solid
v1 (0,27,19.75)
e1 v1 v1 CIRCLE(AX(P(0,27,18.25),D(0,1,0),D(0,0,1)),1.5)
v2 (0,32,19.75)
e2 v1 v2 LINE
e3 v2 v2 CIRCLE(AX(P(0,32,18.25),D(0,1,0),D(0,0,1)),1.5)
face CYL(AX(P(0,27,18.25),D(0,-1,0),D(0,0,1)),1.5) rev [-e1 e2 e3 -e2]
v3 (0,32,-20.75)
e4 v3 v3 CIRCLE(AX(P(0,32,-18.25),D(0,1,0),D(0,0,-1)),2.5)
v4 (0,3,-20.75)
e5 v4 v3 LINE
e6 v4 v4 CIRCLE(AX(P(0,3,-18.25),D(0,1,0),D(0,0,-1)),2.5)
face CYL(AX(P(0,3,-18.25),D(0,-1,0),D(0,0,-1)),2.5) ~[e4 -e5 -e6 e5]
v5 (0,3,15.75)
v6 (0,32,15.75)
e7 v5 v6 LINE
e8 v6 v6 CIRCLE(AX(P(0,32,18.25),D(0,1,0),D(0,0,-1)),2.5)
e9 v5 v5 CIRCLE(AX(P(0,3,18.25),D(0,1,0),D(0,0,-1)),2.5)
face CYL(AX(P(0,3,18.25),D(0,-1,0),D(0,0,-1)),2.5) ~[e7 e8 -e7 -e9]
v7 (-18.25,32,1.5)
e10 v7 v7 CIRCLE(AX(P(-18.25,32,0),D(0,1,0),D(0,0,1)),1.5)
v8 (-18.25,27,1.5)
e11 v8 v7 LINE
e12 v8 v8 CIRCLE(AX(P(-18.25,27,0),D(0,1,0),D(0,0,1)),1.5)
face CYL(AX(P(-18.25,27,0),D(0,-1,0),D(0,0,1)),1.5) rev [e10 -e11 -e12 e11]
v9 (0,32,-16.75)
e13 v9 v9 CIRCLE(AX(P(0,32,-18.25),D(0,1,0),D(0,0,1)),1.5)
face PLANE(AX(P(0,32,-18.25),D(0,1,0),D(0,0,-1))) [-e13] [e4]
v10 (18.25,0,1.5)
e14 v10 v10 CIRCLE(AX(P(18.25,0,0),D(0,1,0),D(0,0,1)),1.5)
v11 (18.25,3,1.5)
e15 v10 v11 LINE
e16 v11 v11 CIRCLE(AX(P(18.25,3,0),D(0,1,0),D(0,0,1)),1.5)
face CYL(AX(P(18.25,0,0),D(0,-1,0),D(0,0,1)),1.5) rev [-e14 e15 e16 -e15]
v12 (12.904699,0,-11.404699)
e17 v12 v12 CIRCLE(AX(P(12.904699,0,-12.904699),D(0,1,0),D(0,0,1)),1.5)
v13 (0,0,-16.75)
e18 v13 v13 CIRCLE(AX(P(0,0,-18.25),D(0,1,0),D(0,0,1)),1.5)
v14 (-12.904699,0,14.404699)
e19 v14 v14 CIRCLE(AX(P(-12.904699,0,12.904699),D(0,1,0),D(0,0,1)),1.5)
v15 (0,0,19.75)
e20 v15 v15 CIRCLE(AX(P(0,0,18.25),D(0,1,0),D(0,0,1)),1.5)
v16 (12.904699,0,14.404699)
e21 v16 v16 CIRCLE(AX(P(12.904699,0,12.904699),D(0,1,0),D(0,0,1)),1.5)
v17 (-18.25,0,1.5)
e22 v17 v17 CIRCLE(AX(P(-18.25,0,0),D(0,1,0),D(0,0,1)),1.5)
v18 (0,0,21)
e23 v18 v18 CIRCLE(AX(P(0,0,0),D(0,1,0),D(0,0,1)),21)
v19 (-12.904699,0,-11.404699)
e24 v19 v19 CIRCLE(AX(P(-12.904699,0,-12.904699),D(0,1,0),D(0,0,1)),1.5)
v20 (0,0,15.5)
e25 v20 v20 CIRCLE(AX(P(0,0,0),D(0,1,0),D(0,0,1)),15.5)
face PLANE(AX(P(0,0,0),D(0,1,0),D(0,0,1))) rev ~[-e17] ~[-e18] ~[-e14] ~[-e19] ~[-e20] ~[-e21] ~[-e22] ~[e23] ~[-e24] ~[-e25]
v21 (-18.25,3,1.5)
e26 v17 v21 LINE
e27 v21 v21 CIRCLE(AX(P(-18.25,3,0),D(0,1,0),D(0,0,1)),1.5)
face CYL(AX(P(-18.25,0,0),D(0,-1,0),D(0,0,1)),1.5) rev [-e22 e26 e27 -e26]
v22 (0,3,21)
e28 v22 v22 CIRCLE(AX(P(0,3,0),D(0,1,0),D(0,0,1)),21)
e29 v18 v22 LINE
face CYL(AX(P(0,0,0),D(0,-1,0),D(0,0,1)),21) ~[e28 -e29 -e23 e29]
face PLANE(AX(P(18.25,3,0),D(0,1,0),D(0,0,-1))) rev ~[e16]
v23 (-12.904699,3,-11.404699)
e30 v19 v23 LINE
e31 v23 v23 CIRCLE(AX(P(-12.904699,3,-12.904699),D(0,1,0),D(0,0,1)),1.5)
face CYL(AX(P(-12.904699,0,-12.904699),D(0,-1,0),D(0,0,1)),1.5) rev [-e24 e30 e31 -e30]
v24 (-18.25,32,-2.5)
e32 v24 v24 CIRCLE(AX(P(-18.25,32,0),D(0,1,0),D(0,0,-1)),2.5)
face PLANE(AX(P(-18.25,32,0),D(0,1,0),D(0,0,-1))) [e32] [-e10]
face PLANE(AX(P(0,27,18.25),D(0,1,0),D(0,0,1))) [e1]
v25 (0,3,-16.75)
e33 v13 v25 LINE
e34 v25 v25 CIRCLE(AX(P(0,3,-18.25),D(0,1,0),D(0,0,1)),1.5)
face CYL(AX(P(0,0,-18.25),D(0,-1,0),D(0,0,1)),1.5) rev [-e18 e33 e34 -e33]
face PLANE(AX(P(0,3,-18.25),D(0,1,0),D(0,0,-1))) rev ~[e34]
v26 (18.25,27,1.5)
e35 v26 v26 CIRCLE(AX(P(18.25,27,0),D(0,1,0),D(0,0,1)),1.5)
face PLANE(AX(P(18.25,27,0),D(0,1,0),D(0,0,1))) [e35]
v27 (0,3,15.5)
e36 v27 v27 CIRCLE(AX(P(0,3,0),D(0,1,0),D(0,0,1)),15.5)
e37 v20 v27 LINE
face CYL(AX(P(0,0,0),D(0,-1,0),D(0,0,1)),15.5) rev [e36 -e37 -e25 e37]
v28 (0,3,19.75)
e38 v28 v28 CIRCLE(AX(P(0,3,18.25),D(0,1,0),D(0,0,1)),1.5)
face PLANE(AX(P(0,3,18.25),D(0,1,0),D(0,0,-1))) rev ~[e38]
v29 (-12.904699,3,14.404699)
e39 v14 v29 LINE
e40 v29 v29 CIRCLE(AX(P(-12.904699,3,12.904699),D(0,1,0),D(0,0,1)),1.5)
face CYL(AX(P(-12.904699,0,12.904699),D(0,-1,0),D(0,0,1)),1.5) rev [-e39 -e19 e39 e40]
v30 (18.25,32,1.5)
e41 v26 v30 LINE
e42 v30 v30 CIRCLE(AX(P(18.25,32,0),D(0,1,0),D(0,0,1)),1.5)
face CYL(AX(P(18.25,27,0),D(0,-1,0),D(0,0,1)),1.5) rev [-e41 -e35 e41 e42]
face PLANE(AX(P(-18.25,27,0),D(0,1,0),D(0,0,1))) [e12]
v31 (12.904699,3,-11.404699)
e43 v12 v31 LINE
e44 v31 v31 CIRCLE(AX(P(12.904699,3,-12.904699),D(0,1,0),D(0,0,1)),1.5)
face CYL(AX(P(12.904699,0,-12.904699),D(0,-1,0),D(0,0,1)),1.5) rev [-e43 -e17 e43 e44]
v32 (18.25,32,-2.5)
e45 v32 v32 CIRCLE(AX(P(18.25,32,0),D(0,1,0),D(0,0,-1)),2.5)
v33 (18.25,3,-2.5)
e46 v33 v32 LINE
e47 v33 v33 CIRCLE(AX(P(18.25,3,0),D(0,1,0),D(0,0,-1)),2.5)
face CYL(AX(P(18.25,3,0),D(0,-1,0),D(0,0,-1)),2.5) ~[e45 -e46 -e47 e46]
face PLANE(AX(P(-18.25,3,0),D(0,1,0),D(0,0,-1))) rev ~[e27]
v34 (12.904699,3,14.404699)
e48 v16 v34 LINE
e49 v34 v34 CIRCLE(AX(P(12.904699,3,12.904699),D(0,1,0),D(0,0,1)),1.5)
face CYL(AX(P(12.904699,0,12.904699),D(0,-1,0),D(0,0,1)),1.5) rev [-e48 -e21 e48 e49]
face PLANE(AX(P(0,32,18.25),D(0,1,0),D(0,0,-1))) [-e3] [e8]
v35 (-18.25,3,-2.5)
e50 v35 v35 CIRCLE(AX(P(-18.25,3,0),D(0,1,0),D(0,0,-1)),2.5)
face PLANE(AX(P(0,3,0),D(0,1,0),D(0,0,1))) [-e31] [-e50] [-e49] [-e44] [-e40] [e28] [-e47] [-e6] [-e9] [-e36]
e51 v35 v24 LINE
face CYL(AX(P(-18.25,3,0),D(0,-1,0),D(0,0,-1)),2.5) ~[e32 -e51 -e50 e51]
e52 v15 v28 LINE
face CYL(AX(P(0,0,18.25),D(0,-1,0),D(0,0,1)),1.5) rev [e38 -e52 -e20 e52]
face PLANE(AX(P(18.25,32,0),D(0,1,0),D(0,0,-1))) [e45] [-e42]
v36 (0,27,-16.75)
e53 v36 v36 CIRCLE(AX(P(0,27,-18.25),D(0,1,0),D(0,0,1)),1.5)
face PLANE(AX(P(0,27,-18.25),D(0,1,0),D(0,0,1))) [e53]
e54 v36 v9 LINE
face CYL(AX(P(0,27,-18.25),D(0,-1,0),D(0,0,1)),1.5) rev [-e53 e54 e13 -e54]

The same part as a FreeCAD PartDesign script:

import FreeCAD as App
import Part
import Sketcher

V = App.Vector
Q = App.Units.Quantity

doc = App.newDocument("Part")
body = doc.addObject("PartDesign::Body", "Body")

# Sketch on XZ plane
sketch1 = body.newObject("Sketcher::SketchObject", "Sketch")
sketch1.AttachmentSupport = (doc.getObject("XZ_Plane"), [""])
sketch1.MapMode = "FlatFace"
sketch1.addGeometry(Part.Circle(V(0, 0, 0), V(0, 0, 1), 21), False)
sketch1.addGeometry(Part.Circle(V(-12.9, -12.9, 0), V(0, 0, 1), 1.5), False)
sketch1.addGeometry(Part.Circle(V(0, -18.2, 0), V(0, 0, 1), 1.5), False)
sketch1.addGeometry(Part.Circle(V(-18.2, 0, 0), V(0, 0, 1), 1.5), False)
sketch1.addGeometry(Part.Circle(V(-12.9, 12.9, 0), V(0, 0, 1), 1.5), False)
sketch1.addGeometry(Part.Circle(V(12.9, -12.9, 0), V(0, 0, 1), 1.5), False)
sketch1.addGeometry(Part.Circle(V(18.2, 0, 0), V(0, 0, 1), 1.5), False)
sketch1.addGeometry(Part.Circle(V(0, 0, 0), V(0, 0, 1), 15.5), False)
sketch1.addGeometry(Part.Circle(V(0, 18.2, 0), V(0, 0, 1), 1.5), False)
sketch1.addGeometry(Part.Circle(V(12.9, 12.9, 0), V(0, 0, 1), 1.5), False)
sketch1.addConstraint(Sketcher.Constraint("Coincident", 0, 3, -1, 1))
sketch1.addConstraint(Sketcher.Constraint("Coincident", 7, 3, -1, 1))
sketch1.addConstraint(Sketcher.Constraint("Equal", 1, 2))
sketch1.addConstraint(Sketcher.Constraint("Equal", 2, 3))
sketch1.addConstraint(Sketcher.Constraint("Equal", 3, 4))
sketch1.addConstraint(Sketcher.Constraint("Equal", 4, 5))
sketch1.addConstraint(Sketcher.Constraint("Equal", 5, 6))
sketch1.addConstraint(Sketcher.Constraint("Equal", 6, 8))
sketch1.addConstraint(Sketcher.Constraint("Equal", 8, 9))
sketch1.addConstraint(Sketcher.Constraint("Symmetric", 4, 3, 5, 3, -1, 1))
sketch1.addConstraint(Sketcher.Constraint("Symmetric", 3, 3, 6, 3, -1, 1))
sketch1.addConstraint(Sketcher.Constraint("Symmetric", 2, 3, 8, 3, -1, 1))
sketch1.addConstraint(Sketcher.Constraint("Symmetric", 1, 3, 9, 3, -1, 1))
sketch1.addConstraint(Sketcher.Constraint("Symmetric", 1, 3, 5, 3, -2))
sketch1.addConstraint(Sketcher.Constraint("PointOnObject", 2, 3, -2))
sketch1.addConstraint(Sketcher.Constraint("PointOnObject", 3, 3, -1))
sketch1.addConstraint(Sketcher.Constraint("Diameter", 0, Q("42 mm")))
sketch1.addConstraint(Sketcher.Constraint("Diameter", 1, Q("3 mm")))
sketch1.addConstraint(Sketcher.Constraint("Diameter", 7, Q("31 mm")))
sketch1.addConstraint(Sketcher.Constraint("DistanceY", 2, 3, -1, 1, Q("18.25 mm")))
sketch1.addConstraint(Sketcher.Constraint("DistanceX", 3, 3, -1, 1, Q("18.25 mm")))
sketch1.addConstraint(Sketcher.Constraint("DistanceX", 1, 3, -1, 1, Q("12.904699 mm")))
sketch1.addConstraint(Sketcher.Constraint("DistanceY", 1, 3, -1, 1, Q("12.904699 mm")))
pad1 = body.newObject("PartDesign::Pad", "Pad")
pad1.Profile = sketch1
pad1.Length = 3
pad1.Reversed = True

# Sketch on XZ plane
sketch2 = body.newObject("Sketcher::SketchObject", "Sketch001")
sketch2.AttachmentSupport = (doc.getObject("XZ_Plane"), [""])
sketch2.MapMode = "FlatFace"
sketch2.AttachmentOffset = App.Placement(V(0, 0, -3), App.Rotation())
sketch2.addGeometry(Part.Circle(V(0, -18.2, 0), V(0, 0, 1), 2.5), False)
sketch2.addGeometry(Part.Circle(V(18.2, 0, 0), V(0, 0, 1), 2.5), False)
sketch2.addGeometry(Part.Circle(V(0, 18.2, 0), V(0, 0, 1), 2.5), False)
sketch2.addGeometry(Part.Circle(V(-18.2, 0, 0), V(0, 0, 1), 2.5), False)
sketch2.addConstraint(Sketcher.Constraint("Equal", 0, 1))
sketch2.addConstraint(Sketcher.Constraint("Equal", 1, 2))
sketch2.addConstraint(Sketcher.Constraint("Equal", 2, 3))
sketch2.addConstraint(Sketcher.Constraint("Symmetric", 0, 3, 2, 3, -1, 1))
sketch2.addConstraint(Sketcher.Constraint("Symmetric", 1, 3, 3, 3, -1, 1))
sketch2.addConstraint(Sketcher.Constraint("PointOnObject", 0, 3, -2))
sketch2.addConstraint(Sketcher.Constraint("PointOnObject", 1, 3, -1))
sketch2.addConstraint(Sketcher.Constraint("Diameter", 0, Q("5 mm")))
sketch2.addConstraint(Sketcher.Constraint("DistanceY", 0, 3, 2, 3, Q("36.5 mm")))
sketch2.addConstraint(Sketcher.Constraint("DistanceX", 3, 3, 1, 3, Q("36.5 mm")))
pad2 = body.newObject("PartDesign::Pad", "Pad001")
pad2.Profile = sketch2
pad2.Length = 29
pad2.Reversed = True

# Sketch on XZ plane
sketch3 = body.newObject("Sketcher::SketchObject", "Sketch002")
sketch3.AttachmentSupport = (doc.getObject("XZ_Plane"), [""])
sketch3.MapMode = "FlatFace"
sketch3.AttachmentOffset = App.Placement(V(0, 0, -27), App.Rotation())
sketch3.addGeometry(Part.Circle(V(18.2, 0, 0), V(0, 0, 1), 1.5), False)
sketch3.addGeometry(Part.Circle(V(0, -18.2, 0), V(0, 0, 1), 1.5), False)
sketch3.addGeometry(Part.Circle(V(0, 18.2, 0), V(0, 0, 1), 1.5), False)
sketch3.addGeometry(Part.Circle(V(-18.2, 0, 0), V(0, 0, 1), 1.5), False)
sketch3.addConstraint(Sketcher.Constraint("Equal", 0, 1))
sketch3.addConstraint(Sketcher.Constraint("Equal", 1, 2))
sketch3.addConstraint(Sketcher.Constraint("Equal", 2, 3))
sketch3.addConstraint(Sketcher.Constraint("Symmetric", 1, 3, 2, 3, -1, 1))
sketch3.addConstraint(Sketcher.Constraint("Symmetric", 0, 3, 3, 3, -1, 1))
sketch3.addConstraint(Sketcher.Constraint("PointOnObject", 0, 3, -1))
sketch3.addConstraint(Sketcher.Constraint("PointOnObject", 1, 3, -2))
sketch3.addConstraint(Sketcher.Constraint("Diameter", 0, Q("3 mm")))
sketch3.addConstraint(Sketcher.Constraint("DistanceY", 1, 3, 2, 3, Q("36.5 mm")))
sketch3.addConstraint(Sketcher.Constraint("DistanceX", 3, 3, 0, 3, Q("36.5 mm")))
pocket1 = body.newObject("PartDesign::Pocket", "Pocket")
pocket1.Profile = sketch3
pocket1.Length = 5

doc.recompute()
